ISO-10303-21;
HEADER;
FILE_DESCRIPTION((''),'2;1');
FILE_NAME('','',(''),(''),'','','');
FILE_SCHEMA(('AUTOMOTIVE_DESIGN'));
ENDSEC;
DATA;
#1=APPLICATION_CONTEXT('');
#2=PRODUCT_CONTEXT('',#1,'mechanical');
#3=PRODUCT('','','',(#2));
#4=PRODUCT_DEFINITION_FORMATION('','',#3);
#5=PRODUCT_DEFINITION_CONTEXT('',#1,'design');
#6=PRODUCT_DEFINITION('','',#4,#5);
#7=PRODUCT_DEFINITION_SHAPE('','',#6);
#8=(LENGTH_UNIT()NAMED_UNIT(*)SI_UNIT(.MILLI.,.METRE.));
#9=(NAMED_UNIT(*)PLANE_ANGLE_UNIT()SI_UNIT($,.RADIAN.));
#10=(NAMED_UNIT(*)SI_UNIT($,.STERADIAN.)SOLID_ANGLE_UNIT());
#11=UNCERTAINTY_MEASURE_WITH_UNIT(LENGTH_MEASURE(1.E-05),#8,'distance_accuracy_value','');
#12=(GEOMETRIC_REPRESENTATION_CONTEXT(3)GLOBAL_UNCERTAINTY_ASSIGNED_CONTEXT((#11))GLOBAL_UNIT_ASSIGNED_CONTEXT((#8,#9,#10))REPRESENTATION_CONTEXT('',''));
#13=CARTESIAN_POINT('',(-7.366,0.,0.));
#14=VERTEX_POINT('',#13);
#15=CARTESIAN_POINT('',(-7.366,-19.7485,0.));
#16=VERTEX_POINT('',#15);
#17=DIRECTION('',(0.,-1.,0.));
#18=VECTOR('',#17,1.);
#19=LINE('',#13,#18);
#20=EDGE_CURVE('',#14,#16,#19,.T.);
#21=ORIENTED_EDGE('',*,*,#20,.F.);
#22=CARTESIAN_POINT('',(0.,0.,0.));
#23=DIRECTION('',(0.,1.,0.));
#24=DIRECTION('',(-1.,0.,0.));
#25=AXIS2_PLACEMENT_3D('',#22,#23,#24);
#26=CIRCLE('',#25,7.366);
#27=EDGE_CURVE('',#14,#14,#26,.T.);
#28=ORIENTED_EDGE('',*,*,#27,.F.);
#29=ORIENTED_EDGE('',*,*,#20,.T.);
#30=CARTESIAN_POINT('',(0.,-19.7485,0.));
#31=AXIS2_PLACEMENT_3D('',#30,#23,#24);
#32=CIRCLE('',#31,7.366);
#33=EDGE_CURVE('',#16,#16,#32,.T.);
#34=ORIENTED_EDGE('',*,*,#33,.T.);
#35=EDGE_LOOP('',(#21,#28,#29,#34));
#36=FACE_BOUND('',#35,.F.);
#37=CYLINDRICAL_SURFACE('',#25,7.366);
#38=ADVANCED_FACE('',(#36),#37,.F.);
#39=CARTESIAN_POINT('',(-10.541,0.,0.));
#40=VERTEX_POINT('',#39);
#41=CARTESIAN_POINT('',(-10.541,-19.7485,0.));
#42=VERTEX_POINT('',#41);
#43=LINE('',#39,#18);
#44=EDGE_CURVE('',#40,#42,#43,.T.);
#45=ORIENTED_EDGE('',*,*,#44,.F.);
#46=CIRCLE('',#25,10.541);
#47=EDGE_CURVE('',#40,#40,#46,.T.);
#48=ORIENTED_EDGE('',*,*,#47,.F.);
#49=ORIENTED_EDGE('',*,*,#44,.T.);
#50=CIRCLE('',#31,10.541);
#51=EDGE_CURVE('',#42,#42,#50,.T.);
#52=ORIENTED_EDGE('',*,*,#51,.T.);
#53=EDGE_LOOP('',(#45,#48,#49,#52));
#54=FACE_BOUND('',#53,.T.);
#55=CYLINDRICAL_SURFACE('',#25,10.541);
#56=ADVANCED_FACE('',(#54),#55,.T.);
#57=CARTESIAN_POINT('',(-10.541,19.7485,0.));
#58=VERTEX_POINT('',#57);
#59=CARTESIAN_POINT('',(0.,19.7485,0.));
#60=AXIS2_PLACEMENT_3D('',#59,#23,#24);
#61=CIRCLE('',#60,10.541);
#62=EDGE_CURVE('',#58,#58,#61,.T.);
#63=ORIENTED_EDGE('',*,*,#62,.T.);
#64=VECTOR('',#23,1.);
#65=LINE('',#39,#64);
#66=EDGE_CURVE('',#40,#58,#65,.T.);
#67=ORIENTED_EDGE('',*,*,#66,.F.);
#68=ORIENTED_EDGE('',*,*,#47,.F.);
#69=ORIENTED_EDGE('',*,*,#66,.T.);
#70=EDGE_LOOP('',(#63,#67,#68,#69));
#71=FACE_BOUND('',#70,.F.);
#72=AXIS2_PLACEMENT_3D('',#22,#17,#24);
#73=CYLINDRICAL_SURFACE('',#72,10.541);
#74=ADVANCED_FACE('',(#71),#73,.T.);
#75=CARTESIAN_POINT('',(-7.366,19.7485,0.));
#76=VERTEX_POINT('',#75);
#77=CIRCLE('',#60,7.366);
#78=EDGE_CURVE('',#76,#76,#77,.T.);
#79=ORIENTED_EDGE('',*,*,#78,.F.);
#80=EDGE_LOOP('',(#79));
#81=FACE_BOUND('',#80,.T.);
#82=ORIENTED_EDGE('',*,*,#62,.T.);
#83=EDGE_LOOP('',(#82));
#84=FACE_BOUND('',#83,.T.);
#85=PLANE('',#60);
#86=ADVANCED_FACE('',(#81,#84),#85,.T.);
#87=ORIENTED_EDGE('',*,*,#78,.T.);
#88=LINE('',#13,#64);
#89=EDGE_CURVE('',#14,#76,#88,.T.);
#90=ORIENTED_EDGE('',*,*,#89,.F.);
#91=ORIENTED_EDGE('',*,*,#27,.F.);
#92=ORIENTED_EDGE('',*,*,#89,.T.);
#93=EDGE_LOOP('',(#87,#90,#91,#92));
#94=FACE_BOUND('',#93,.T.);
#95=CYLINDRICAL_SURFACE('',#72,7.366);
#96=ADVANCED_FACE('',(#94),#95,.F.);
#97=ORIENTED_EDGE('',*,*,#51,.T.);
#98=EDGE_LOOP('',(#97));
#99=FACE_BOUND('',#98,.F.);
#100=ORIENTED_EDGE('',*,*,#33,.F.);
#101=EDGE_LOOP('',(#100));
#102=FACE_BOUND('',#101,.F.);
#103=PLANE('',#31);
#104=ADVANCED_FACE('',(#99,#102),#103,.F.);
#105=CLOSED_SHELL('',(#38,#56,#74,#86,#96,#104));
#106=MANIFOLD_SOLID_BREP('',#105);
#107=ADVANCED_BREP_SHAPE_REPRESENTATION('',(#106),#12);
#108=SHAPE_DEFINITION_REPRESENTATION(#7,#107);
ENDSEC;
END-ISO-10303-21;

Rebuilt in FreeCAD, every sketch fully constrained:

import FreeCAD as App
import Part
import Sketcher
Q = App.Units.Quantity

doc = App.newDocument("Part")
body = doc.addObject("PartDesign::Body", "Body")

sketch1 = doc.addObject("Sketcher::SketchObject", "Sketch")
body.addObject(sketch1)
sketch1.AttachmentSupport = (doc.XZ_Plane, [""])
sketch1.MapMode = "FlatFace"
sketch1.addGeometry(Part.Circle(App.Vector(0, 0, 0), App.Vector(0, 0, 1), 10.541), False)
sketch1.addGeometry(Part.Circle(App.Vector(0, 0, 0), App.Vector(0, 0, 1), 7.366), False)
sketch1.addConstraint(Sketcher.Constraint("Coincident", 0, 3, -1, 1))
sketch1.addConstraint(Sketcher.Constraint("Coincident", 1, 3, -1, 1))
sketch1.addConstraint(Sketcher.Constraint("Diameter", 1, Q("0.58 in")))
sketch1.addConstraint(Sketcher.Constraint("Diameter", 0, Q("0.83 in")))
pad1 = doc.addObject("PartDesign::Pad", "Pad")
body.addObject(pad1)
pad1.Profile = sketch1
pad1.Length = Q("1.555 in")
pad1.Midplane = True

doc.recompute()
